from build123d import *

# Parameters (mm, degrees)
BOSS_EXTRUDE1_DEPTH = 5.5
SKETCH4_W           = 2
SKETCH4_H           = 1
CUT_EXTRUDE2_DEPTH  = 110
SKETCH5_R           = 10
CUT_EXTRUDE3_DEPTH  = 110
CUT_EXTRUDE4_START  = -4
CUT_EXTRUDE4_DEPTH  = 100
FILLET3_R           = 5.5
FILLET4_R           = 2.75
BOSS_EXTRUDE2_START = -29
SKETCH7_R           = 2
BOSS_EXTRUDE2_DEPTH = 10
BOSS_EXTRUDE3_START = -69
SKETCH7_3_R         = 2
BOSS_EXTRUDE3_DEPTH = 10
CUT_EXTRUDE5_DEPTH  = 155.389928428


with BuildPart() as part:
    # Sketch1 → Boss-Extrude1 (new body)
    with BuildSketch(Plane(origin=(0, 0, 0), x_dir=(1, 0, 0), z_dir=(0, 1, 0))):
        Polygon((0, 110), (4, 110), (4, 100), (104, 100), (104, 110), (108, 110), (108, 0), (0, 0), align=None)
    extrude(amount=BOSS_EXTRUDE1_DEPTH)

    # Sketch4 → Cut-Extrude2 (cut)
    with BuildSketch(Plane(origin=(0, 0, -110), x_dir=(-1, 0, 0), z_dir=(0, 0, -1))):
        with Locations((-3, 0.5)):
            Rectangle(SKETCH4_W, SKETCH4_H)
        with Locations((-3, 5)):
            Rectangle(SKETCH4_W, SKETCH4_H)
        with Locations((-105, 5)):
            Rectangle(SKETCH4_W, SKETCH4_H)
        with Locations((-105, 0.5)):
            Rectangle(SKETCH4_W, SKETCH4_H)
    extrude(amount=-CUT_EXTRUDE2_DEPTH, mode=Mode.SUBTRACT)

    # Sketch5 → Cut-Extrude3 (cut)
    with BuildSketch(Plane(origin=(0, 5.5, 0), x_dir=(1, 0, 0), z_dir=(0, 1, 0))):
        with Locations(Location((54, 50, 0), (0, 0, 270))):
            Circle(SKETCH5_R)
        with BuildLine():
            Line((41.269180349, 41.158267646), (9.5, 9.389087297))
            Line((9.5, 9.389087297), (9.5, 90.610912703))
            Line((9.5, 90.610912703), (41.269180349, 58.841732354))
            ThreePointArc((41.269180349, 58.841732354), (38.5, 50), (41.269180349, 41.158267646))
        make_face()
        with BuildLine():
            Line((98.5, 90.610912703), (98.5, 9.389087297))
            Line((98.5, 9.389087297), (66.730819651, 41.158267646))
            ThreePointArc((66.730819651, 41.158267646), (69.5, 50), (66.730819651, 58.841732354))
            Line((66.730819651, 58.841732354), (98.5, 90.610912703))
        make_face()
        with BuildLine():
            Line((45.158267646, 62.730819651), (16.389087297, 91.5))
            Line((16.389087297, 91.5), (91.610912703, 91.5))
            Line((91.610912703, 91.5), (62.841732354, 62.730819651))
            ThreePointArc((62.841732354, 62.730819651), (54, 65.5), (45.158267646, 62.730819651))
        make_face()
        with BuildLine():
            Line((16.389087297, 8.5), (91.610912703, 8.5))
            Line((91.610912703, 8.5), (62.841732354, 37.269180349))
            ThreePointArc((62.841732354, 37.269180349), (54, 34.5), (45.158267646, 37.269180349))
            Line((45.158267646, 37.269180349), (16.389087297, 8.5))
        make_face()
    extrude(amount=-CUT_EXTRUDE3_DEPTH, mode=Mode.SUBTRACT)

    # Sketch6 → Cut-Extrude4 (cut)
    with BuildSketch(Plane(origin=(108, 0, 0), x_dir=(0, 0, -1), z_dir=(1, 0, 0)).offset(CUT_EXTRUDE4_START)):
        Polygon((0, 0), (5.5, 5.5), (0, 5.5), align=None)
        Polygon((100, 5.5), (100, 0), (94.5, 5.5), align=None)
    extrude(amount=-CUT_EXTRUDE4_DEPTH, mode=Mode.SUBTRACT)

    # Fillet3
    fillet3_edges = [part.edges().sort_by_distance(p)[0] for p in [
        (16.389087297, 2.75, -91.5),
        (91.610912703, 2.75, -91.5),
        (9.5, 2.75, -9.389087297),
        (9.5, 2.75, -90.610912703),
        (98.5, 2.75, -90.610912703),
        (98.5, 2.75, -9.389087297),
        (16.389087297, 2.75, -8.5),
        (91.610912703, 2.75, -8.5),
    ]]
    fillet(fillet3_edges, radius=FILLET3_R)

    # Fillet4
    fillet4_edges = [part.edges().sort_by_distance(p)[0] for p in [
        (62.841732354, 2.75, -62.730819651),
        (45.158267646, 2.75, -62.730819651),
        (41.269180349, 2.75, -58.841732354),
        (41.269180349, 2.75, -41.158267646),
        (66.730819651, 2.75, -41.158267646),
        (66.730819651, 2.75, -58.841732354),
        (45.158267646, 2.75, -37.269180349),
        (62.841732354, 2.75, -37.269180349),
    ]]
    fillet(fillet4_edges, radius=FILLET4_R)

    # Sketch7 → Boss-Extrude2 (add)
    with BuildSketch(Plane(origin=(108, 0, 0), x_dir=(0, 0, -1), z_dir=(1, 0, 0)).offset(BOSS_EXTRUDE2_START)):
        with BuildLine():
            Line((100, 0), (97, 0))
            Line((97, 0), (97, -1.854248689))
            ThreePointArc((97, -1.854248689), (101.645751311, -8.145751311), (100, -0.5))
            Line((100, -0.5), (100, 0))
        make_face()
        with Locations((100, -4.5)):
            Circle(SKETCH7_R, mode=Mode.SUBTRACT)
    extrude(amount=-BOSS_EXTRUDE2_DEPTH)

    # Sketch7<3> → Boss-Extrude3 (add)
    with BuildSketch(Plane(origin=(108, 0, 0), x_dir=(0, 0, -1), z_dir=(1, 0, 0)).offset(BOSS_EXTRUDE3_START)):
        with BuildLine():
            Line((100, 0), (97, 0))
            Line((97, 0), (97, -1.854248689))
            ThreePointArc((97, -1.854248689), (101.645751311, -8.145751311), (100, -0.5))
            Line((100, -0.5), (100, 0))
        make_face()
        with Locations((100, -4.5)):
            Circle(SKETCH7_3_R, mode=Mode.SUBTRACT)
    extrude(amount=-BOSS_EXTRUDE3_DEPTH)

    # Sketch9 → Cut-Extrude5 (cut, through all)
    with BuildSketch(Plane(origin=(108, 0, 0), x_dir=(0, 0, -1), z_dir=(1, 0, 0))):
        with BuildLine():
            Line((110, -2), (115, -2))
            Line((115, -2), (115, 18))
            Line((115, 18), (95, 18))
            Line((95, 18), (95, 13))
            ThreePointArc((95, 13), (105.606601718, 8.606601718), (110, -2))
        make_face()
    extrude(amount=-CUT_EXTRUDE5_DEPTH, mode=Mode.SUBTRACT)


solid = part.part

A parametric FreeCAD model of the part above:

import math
import FreeCAD as App
import Part
import Sketcher

V = App.Vector
Q = App.Units.Quantity


def edges_at(feature, points):
    """Names of the edges that pass closest to the given points."""
    edges = feature.Shape.Edges
    near = lambda p: min(range(len(edges)), key=lambda i: edges[i].distToShape(Part.Vertex(*p))[0])
    return sorted({f"Edge{near(p) + 1}" for p in points})


def add_polygon(sketch, points):
    """Adds a closed chain of lines whose ends are joined by coincident constraints."""
    first, n = sketch.GeometryCount, len(points)
    for a, b in zip(points, points[1:] + points[:1]):
        sketch.addGeometry(Part.LineSegment(App.Vector(*a, 0), App.Vector(*b, 0)), False)
    for i in range(n):
        sketch.addConstraint(Sketcher.Constraint("Coincident", first + i, 2, first + (i + 1) % n, 1))

doc = App.newDocument("Part")
body = doc.addObject("PartDesign::Body", "Body")

sketch1 = doc.addObject("Sketcher::SketchObject", "Sketch")
body.addObject(sketch1)
sketch1.AttachmentSupport = (doc.XZ_Plane, [""])
sketch1.MapMode = "FlatFace"
add_polygon(sketch1, [(4, -110), (0, -110), (0, 0), (108, 0), (108, -110), (104, -110), (104, -100), (4, -100)])
sketch1.addConstraint([
    Sketcher.Constraint("Horizontal", 0),
    Sketcher.Constraint("Vertical", 1),
    Sketcher.Constraint("Horizontal", 2),
    Sketcher.Constraint("Vertical", 3),
    Sketcher.Constraint("Horizontal", 4),
    Sketcher.Constraint("Vertical", 5),
    Sketcher.Constraint("Horizontal", 6),
    Sketcher.Constraint("Vertical", 7),
    Sketcher.Constraint("Coincident", 1, 2, -1, 1),
    Sketcher.Constraint("Horizontal", 0, 2, 3, 2),
    Sketcher.Constraint("Equal", 0, 4),
    Sketcher.Constraint("DistanceX", 0, 2, 0, 1, Q("4 mm")),
    Sketcher.Constraint("DistanceX", 2, 1, 2, 2, Q("108 mm")),
    Sketcher.Constraint("DistanceY", 1, 1, 1, 2, Q("110 mm")),
    Sketcher.Constraint("DistanceY", 5, 1, 5, 2, Q("10 mm")),
])
pad1 = doc.addObject("PartDesign::Pad", "Pad")
body.addObject(pad1)
pad1.Profile = sketch1
pad1.Length = 5.5
pad1.Reversed = True

sketch2 = doc.addObject("Sketcher::SketchObject", "Sketch001")
body.addObject(sketch2)
sketch2.AttachmentSupport = (doc.XY_Plane, [""])
sketch2.MapMode = "FlatFace"
sketch2.AttachmentOffset = App.Placement(V(0, 0, -110), App.Rotation())
add_polygon(sketch2, [(4, 1), (4, 0), (2, 0), (2, 1)])
add_polygon(sketch2, [(4, 5.5), (4, 4.5), (2, 4.5), (2, 5.5)])
add_polygon(sketch2, [(106, 5.5), (106, 4.5), (104, 4.5), (104, 5.5)])
add_polygon(sketch2, [(106, 1), (106, 0), (104, 0), (104, 1)])
sketch2.addConstraint([
    Sketcher.Constraint("Vertical", 0),
    Sketcher.Constraint("Horizontal", 1),
    Sketcher.Constraint("Vertical", 2),
    Sketcher.Constraint("Horizontal", 3),
    Sketcher.Constraint("Vertical", 4),
    Sketcher.Constraint("Horizontal", 5),
    Sketcher.Constraint("Vertical", 6),
    Sketcher.Constraint("Horizontal", 7),
    Sketcher.Constraint("Vertical", 8),
    Sketcher.Constraint("Horizontal", 9),
    Sketcher.Constraint("Vertical", 10),
    Sketcher.Constraint("Horizontal", 11),
    Sketcher.Constraint("Vertical", 12),
    Sketcher.Constraint("Horizontal", 13),
    Sketcher.Constraint("Vertical", 14),
    Sketcher.Constraint("Horizontal", 15),
    Sketcher.Constraint("PointOnObject", 0, 2, -1),
    Sketcher.Constraint("PointOnObject", 12, 2, -1),
    Sketcher.Constraint("Horizontal", 5, 2, 8, 2),
    Sketcher.Constraint("Horizontal", 7, 2, 10, 2),
    Sketcher.Constraint("Horizontal", 3, 2, 14, 2),
    Sketcher.Constraint("Vertical", 3, 2, 4, 2),
    Sketcher.Constraint("Vertical", 2, 2, 5, 2),
    Sketcher.Constraint("Vertical", 11, 2, 12, 2),
    Sketcher.Constraint("Vertical", 10, 2, 13, 2),
    Sketcher.Constraint("Equal", 7, 9),
    Sketcher.Constraint("Equal", 2, 4),
    Sketcher.Constraint("DistanceX", 1, 2, 1, 1, Q("2 mm")),
    Sketcher.Constraint("DistanceY", 0, 2, 0, 1, Q("1 mm")),
    Sketcher.Constraint("DistanceX", -1, 1, 0, 2, Q("4 mm")),
    Sketcher.Constraint("DistanceX", -1, 1, 8, 2, Q("106 mm")),
    Sketcher.Constraint("DistanceY", -1, 1, 4, 2, Q("4.5 mm")),
])
pocket1 = doc.addObject("PartDesign::Pocket", "Pocket")
body.addObject(pocket1)
pocket1.Profile = sketch2
pocket1.Length = 110
pocket1.Reversed = True

sketch3 = doc.addObject("Sketcher::SketchObject", "Sketch002")
body.addObject(sketch3)
sketch3.AttachmentSupport = (doc.XZ_Plane, [""])
sketch3.MapMode = "FlatFace"
sketch3.AttachmentOffset = App.Placement(V(0, 0, -5.5), App.Rotation())
sketch3.addGeometry([
    Part.Circle(V(54, -50, 0), V(0, 0, 1), 10),
    Part.LineSegment(V(10, -9, 0), V(41, -41, 0)),
    Part.ArcOfCircle(Part.Circle(V(54, -50, 0), V(0, 0, 1), 16), math.radians(145), math.radians(215)),
    Part.LineSegment(V(41, -59, 0), V(10, -91, 0)),
    Part.LineSegment(V(10, -91, 0), V(10, -9, 0)),
    Part.LineSegment(V(98, -9, 0), V(98, -91, 0)),
    Part.LineSegment(V(98, -91, 0), V(67, -59, 0)),
    Part.ArcOfCircle(Part.Circle(V(54, -50, 0), V(0, 0, 1), 16), math.radians(-35), math.radians(35)),
    Part.LineSegment(V(67, -41, 0), V(98, -9, 0)),
    Part.LineSegment(V(16, -92, 0), V(45, -63, 0)),
    Part.ArcOfCircle(Part.Circle(V(54, -50, 0), V(0, 0, 1), 16), math.radians(-125), math.radians(-55)),
    Part.LineSegment(V(63, -63, 0), V(92, -92, 0)),
    Part.LineSegment(V(92, -92, 0), V(16, -92, 0)),
    Part.LineSegment(V(16, -8, 0), V(92, -8, 0)),
    Part.LineSegment(V(92, -8, 0), V(63, -37, 0)),
    Part.ArcOfCircle(Part.Circle(V(54, -50, 0), V(0, 0, 1), 16), math.radians(55), math.radians(125)),
    Part.LineSegment(V(45, -37, 0), V(16, -8, 0)),
], False)
sketch3.addConstraint([
    Sketcher.Constraint("Coincident", 1, 2, 2, 1),
    Sketcher.Constraint("Coincident", 2, 2, 3, 1),
    Sketcher.Constraint("Coincident", 3, 2, 4, 1),
    Sketcher.Constraint("Coincident", 4, 2, 1, 1),
    Sketcher.Constraint("Coincident", 5, 2, 6, 1),
    Sketcher.Constraint("Coincident", 6, 2, 7, 1),
    Sketcher.Constraint("Coincident", 7, 2, 8, 1),
    Sketcher.Constraint("Coincident", 8, 2, 5, 1),
    Sketcher.Constraint("Coincident", 9, 2, 10, 1),
    Sketcher.Constraint("Coincident", 10, 2, 11, 1),
    Sketcher.Constraint("Coincident", 11, 2, 12, 1),
    Sketcher.Constraint("Coincident", 12, 2, 9, 1),
    Sketcher.Constraint("Coincident", 13, 2, 14, 1),
    Sketcher.Constraint("Coincident", 14, 2, 15, 1),
    Sketcher.Constraint("Coincident", 15, 2, 16, 1),
    Sketcher.Constraint("Coincident", 16, 2, 13, 1),
    Sketcher.Constraint("Vertical", 4),
    Sketcher.Constraint("Vertical", 5),
    Sketcher.Constraint("Horizontal", 12),
    Sketcher.Constraint("Horizontal", 13),
    Sketcher.Constraint("Coincident", 2, 3, 0, 3),
    Sketcher.Constraint("Coincident", 7, 3, 0, 3),
    Sketcher.Constraint("Coincident", 10, 3, 0, 3),
    Sketcher.Constraint("Coincident", 15, 3, 0, 3),
    Sketcher.Constraint("Equal", 2, 7),
    Sketcher.Constraint("Equal", 7, 10),
    Sketcher.Constraint("Equal", 10, 15),
    Sketcher.Constraint("Perpendicular", 1, 3),
    Sketcher.Constraint("Perpendicular", 3, 6),
    Sketcher.Constraint("Perpendicular", 6, 8),
    Sketcher.Constraint("Parallel", 8, 9),
    Sketcher.Constraint("Perpendicular", 9, 11),
    Sketcher.Constraint("Perpendicular", 11, 14),
    Sketcher.Constraint("Perpendicular", 14, 16),
    Sketcher.Constraint("Horizontal", 3, 2, 5, 2),
    Sketcher.Constraint("Horizontal", 2, 2, 6, 2),
    Sketcher.Constraint("Horizontal", 1, 2, 7, 2),
    Sketcher.Constraint("Horizontal", 4, 2, 8, 2),
    Sketcher.Constraint("Horizontal", 9, 2, 10, 2),
    Sketcher.Constraint("Horizontal", 14, 2, 15, 2),
    Sketcher.Constraint("Vertical", 1, 2, 2, 2),
    Sketcher.Constraint("Vertical", 11, 2, 13, 2),
    Sketcher.Constraint("Vertical", 10, 2, 14, 2),
    Sketcher.Constraint("Diameter", 0, Q("20 mm")),
    Sketcher.Constraint("Radius", 2, Q("15.5 mm")),
    Sketcher.Constraint("DistanceX", -1, 1, 0, 3, Q("54 mm")),
    Sketcher.Constraint("DistanceY", 0, 3, -1, 1, Q("50 mm")),
    Sketcher.Constraint("DistanceX", -1, 1, 3, 2, Q("9.5 mm")),
    Sketcher.Constraint("DistanceY", 11, 2, -1, 1, Q("91.5 mm")),
    Sketcher.Constraint("DistanceX", 12, 2, 12, 1, Q("75.221825 mm")),
    Sketcher.Constraint("DistanceY", 4, 1, 4, 2, Q("81.221825 mm")),
])
pocket2 = doc.addObject("PartDesign::Pocket", "Pocket001")
body.addObject(pocket2)
pocket2.Profile = sketch3
pocket2.Length = 110
pocket2.Reversed = True

sketch4 = doc.addObject("Sketcher::SketchObject", "Sketch003")
body.addObject(sketch4)
sketch4.AttachmentSupport = (doc.YZ_Plane, [""])
sketch4.MapMode = "FlatFace"
sketch4.AttachmentOffset = App.Placement(V(0, 0, 104), App.Rotation())
add_polygon(sketch4, [(0, 0), (6, -6), (6, 0)])
add_polygon(sketch4, [(0, -100), (6, -100), (6, -94)])
sketch4.addConstraint([
    Sketcher.Constraint("Vertical", 1),
    Sketcher.Constraint("Horizontal", 2),
    Sketcher.Constraint("Horizontal", 3),
    Sketcher.Constraint("Vertical", 4),
    Sketcher.Constraint("Coincident", 2, 2, -1, 1),
    Sketcher.Constraint("PointOnObject", 5, 2, -2),
    Sketcher.Constraint("Perpendicular", 0, 5),
    Sketcher.Constraint("Vertical", 1, 2, 3, 2),
    Sketcher.Constraint("Equal", 3, 1),
    Sketcher.Constraint("DistanceX", 2, 2, 2, 1, Q("5.5 mm")),
    Sketcher.Constraint("DistanceY", 3, 2, -1, 1, Q("100 mm")),
])
pocket3 = doc.addObject("PartDesign::Pocket", "Pocket002")
body.addObject(pocket3)
pocket3.Profile = sketch4
pocket3.Length = 100
doc.recompute()

fillet = doc.addObject("PartDesign::Fillet", "Fillet")
body.addObject(fillet)
fillet.Base = (pocket3, edges_at(pocket3, [
    (16.389, 2.75, -91.5),
    (91.611, 2.75, -91.5),
    (9.5, 2.75, -9.389),
    (9.5, 2.75, -90.611),
    (98.5, 2.75, -90.611),
    (98.5, 2.75, -9.389),
    (16.389, 2.75, -8.5),
    (91.611, 2.75, -8.5),
]))
fillet.Radius = 5.5
doc.recompute()

fillet2 = doc.addObject("PartDesign::Fillet", "Fillet001")
body.addObject(fillet2)
fillet2.Base = (fillet, edges_at(fillet, [
    (62.842, 2.75, -62.731),
    (45.158, 2.75, -62.731),
    (41.269, 2.75, -58.842),
    (41.269, 2.75, -41.158),
    (66.731, 2.75, -41.158),
    (66.731, 2.75, -58.842),
    (45.158, 2.75, -37.269),
    (62.842, 2.75, -37.269),
]))
fillet2.Radius = 2.75

sketch5 = doc.addObject("Sketcher::SketchObject", "Sketch004")
body.addObject(sketch5)
sketch5.AttachmentSupport = (doc.YZ_Plane, [""])
sketch5.MapMode = "FlatFace"
sketch5.AttachmentOffset = App.Placement(V(0, 0, 79), App.Rotation())
sketch5.addGeometry([
    Part.LineSegment(V(0, -100, 0), V(0, -97, 0)),
    Part.LineSegment(V(0, -97, 0), V(-1.9, -97, 0)),
    Part.ArcOfCircle(Part.Circle(V(-4.5, -100, 0), V(0, 0, 1), 4), math.radians(49), math.radians(360)),
    Part.LineSegment(V(-0.5, -100, 0), V(0, -100, 0)),
    Part.Circle(V(-4.5, -100, 0), V(0, 0, 1), 2),
], False)
sketch5.addConstraint([
    Sketcher.Constraint("Coincident", 0, 2, 1, 1),
    Sketcher.Constraint("Coincident", 1, 2, 2, 1),
    Sketcher.Constraint("Coincident", 2, 2, 3, 1),
    Sketcher.Constraint("Coincident", 3, 2, 0, 1),
    Sketcher.Constraint("Vertical", 0),
    Sketcher.Constraint("Horizontal", 1),
    Sketcher.Constraint("Horizontal", 3),
    Sketcher.Constraint("Coincident", 4, 3, 2, 3),
    Sketcher.Constraint("PointOnObject", 0, 2, -2),
    Sketcher.Constraint("Horizontal", 4, 3, 2, 2),
    Sketcher.Constraint("Diameter", 4, Q("4 mm")),
    Sketcher.Constraint("Radius", 2, Q("4 mm")),
    Sketcher.Constraint("DistanceY", 0, 1, 0, 2, Q("3 mm")),
    Sketcher.Constraint("DistanceX", 3, 1, 3, 2, Q("0.5 mm")),
    Sketcher.Constraint("DistanceY", 2, 3, -1, 1, Q("100 mm")),
])
pad2 = doc.addObject("PartDesign::Pad", "Pad001")
body.addObject(pad2)
pad2.Profile = sketch5
pad2.Length = 10
pad2.Reversed = True

sketch6 = doc.addObject("Sketcher::SketchObject", "Sketch005")
body.addObject(sketch6)
sketch6.AttachmentSupport = (doc.YZ_Plane, [""])
sketch6.MapMode = "FlatFace"
sketch6.AttachmentOffset = App.Placement(V(0, 0, 39), App.Rotation())
sketch6.addGeometry([
    Part.LineSegment(V(0, -100, 0), V(0, -97, 0)),
    Part.LineSegment(V(0, -97, 0), V(-1.9, -97, 0)),
    Part.ArcOfCircle(Part.Circle(V(-4.5, -100, 0), V(0, 0, 1), 4), math.radians(49), math.radians(360)),
    Part.LineSegment(V(-0.5, -100, 0), V(0, -100, 0)),
    Part.Circle(V(-4.5, -100, 0), V(0, 0, 1), 2),
], False)
sketch6.addConstraint([
    Sketcher.Constraint("Coincident", 0, 2, 1, 1),
    Sketcher.Constraint("Coincident", 1, 2, 2, 1),
    Sketcher.Constraint("Coincident", 2, 2, 3, 1),
    Sketcher.Constraint("Coincident", 3, 2, 0, 1),
    Sketcher.Constraint("Vertical", 0),
    Sketcher.Constraint("Horizontal", 1),
    Sketcher.Constraint("Horizontal", 3),
    Sketcher.Constraint("Coincident", 4, 3, 2, 3),
    Sketcher.Constraint("PointOnObject", 0, 2, -2),
    Sketcher.Constraint("Horizontal", 4, 3, 2, 2),
    Sketcher.Constraint("Diameter", 4, Q("4 mm")),
    Sketcher.Constraint("Radius", 2, Q("4 mm")),
    Sketcher.Constraint("DistanceY", 0, 1, 0, 2, Q("3 mm")),
    Sketcher.Constraint("DistanceX", 3, 1, 3, 2, Q("0.5 mm")),
    Sketcher.Constraint("DistanceY", 2, 3, -1, 1, Q("100 mm")),
])
pad3 = doc.addObject("PartDesign::Pad", "Pad002")
body.addObject(pad3)
pad3.Profile = sketch6
pad3.Length = 10
pad3.Reversed = True

sketch7 = doc.addObject("Sketcher::SketchObject", "Sketch006")
body.addObject(sketch7)
sketch7.AttachmentSupport = (doc.YZ_Plane, [""])
sketch7.MapMode = "FlatFace"
sketch7.AttachmentOffset = App.Placement(V(0, 0, 108), App.Rotation())
sketch7.addGeometry([
    Part.LineSegment(V(-2, -110, 0), V(-2, -115, 0)),
    Part.LineSegment(V(-2, -115, 0), V(18, -115, 0)),
    Part.LineSegment(V(18, -115, 0), V(18, -95, 0)),
    Part.LineSegment(V(18, -95, 0), V(13, -95, 0)),
    Part.ArcOfCircle(Part.Circle(V(-2, -95, 0), V(0, 0, 1), 15), math.radians(-90), math.radians(0)),
], False)
sketch7.addConstraint([
    Sketcher.Constraint("Coincident", 0, 2, 1, 1),
    Sketcher.Constraint("Coincident", 1, 2, 2, 1),
    Sketcher.Constraint("Coincident", 2, 2, 3, 1),
    Sketcher.Constraint("Coincident", 3, 2, 4, 2),
    Sketcher.Constraint("Coincident", 4, 1, 0, 1),
    Sketcher.Constraint("Vertical", 0),
    Sketcher.Constraint("Horizontal", 1),
    Sketcher.Constraint("Vertical", 2),
    Sketcher.Constraint("Horizontal", 3),
    Sketcher.Constraint("Horizontal", 4, 3, 2, 2),
    Sketcher.Constraint("Vertical", 4, 3, 0, 2),
    Sketcher.Constraint("Equal", 3, 0),
    Sketcher.Constraint("Radius", 4, Q("15 mm")),
    Sketcher.Constraint("DistanceX", 1, 1, 1, 2, Q("20 mm")),
    Sketcher.Constraint("DistanceX", 4, 3, -1, 1, Q("2 mm")),
    Sketcher.Constraint("DistanceY", 4, 3, -1, 1, Q("95 mm")),
])
pocket4 = doc.addObject("PartDesign::Pocket", "Pocket003")
body.addObject(pocket4)
pocket4.Profile = sketch7
pocket4.Type = "ThroughAll"

doc.recompute()
